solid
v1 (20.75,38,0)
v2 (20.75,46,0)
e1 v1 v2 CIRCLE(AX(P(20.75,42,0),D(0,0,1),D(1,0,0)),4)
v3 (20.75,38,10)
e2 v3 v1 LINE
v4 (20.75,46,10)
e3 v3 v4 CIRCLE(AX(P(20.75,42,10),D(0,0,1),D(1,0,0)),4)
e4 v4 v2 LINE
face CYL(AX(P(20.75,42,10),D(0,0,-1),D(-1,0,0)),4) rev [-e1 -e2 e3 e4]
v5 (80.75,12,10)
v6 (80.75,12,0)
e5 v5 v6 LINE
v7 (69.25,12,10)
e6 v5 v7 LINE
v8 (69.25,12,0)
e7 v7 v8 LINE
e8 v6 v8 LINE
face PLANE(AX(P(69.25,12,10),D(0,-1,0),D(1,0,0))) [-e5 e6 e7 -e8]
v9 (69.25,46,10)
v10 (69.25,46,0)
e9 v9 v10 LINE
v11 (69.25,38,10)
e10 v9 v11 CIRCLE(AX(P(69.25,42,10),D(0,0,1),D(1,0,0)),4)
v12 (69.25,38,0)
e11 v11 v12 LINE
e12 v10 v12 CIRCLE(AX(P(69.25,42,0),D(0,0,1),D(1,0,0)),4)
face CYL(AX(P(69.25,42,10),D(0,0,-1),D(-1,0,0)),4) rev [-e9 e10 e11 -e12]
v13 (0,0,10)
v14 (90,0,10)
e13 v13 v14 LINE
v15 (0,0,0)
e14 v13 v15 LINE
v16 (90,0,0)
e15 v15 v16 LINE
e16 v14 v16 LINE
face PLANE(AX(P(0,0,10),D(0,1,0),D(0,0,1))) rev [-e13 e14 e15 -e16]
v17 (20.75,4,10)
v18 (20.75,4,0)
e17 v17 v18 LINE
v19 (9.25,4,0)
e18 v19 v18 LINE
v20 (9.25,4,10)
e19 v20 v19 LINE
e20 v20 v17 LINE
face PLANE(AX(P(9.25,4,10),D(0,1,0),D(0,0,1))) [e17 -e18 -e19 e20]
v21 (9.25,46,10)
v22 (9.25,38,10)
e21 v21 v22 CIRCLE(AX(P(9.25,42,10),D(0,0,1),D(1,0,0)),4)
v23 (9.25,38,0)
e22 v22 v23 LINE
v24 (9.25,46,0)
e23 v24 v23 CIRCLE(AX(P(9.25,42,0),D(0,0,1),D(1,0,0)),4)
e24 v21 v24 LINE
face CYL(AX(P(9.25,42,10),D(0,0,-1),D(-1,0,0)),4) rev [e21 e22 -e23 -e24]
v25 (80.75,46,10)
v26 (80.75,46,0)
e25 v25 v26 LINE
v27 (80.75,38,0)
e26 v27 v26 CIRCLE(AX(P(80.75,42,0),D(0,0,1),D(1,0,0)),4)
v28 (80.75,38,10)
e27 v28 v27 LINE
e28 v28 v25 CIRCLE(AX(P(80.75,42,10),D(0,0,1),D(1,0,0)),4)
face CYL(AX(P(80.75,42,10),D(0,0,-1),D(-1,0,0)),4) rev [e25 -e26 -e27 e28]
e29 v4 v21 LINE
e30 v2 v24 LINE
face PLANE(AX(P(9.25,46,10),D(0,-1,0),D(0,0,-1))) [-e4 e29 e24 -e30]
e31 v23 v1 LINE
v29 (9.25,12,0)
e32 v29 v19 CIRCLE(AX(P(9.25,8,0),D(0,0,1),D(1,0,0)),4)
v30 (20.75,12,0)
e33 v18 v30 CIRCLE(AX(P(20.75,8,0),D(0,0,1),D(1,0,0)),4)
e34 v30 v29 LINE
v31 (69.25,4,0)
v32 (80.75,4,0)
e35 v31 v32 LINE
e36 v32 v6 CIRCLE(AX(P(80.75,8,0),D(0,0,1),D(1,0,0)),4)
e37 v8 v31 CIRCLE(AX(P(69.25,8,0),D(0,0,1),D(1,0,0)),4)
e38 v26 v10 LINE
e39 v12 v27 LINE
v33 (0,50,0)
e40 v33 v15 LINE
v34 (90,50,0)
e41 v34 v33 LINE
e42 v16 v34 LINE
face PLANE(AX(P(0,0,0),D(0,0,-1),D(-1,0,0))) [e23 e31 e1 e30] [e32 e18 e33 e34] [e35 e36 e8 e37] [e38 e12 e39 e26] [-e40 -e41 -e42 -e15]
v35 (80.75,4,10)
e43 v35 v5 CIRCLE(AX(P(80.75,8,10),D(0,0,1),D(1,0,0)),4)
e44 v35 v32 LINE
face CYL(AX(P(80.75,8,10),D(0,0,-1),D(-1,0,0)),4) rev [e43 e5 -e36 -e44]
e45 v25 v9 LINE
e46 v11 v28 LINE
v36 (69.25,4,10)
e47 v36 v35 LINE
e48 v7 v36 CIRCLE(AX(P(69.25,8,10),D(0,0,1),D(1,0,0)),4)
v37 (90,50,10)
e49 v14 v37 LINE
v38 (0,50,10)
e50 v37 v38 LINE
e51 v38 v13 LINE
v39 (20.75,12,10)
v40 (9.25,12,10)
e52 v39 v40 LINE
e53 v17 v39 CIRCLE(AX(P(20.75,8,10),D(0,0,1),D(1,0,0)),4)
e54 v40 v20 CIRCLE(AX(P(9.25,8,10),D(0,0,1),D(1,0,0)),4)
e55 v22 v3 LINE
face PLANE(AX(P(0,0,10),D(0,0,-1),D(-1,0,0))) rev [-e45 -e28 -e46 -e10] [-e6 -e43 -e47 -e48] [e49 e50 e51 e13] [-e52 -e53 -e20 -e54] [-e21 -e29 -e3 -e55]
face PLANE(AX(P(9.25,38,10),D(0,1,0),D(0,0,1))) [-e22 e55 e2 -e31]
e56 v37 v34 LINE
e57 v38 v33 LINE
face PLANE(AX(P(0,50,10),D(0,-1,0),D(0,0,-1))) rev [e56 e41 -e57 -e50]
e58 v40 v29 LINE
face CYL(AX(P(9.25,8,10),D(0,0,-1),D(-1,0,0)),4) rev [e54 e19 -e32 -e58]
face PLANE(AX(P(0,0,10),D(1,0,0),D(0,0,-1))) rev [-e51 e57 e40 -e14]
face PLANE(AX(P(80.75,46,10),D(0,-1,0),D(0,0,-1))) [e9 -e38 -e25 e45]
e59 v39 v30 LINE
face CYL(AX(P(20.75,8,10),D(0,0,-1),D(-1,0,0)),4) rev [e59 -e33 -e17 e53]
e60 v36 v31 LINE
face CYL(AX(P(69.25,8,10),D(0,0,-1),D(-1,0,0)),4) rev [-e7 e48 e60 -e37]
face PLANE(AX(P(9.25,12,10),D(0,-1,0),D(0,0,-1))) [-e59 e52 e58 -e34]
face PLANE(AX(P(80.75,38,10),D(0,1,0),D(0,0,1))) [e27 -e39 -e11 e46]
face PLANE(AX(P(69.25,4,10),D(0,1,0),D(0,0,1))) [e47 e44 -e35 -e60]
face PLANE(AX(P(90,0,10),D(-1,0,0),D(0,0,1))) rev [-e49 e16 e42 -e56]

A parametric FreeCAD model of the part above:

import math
import FreeCAD as App
import Part
import Sketcher
from FreeCAD import Vector
Q = App.Units.Quantity

doc = App.newDocument("Part")
body = doc.addObject("PartDesign::Body", "Body")

# Sketch on XY plane
sketch1 = body.newObject("Sketcher::SketchObject", "Sketch")
sketch1.AttachmentSupport = (doc.getObject("XY_Plane"), [""])
sketch1.MapMode = "FlatFace"
sketch1.addGeometry([
    Part.LineSegment(Vector(0, 50, 0), Vector(0, 0, 0)),  # 0
    Part.LineSegment(Vector(0, 0, 0), Vector(90, 0, 0)),  # 1
    Part.LineSegment(Vector(90, 0, 0), Vector(90, 50, 0)),  # 2
    Part.LineSegment(Vector(90, 50, 0), Vector(0, 50, 0)),  # 3
    Part.ArcOfCircle(Part.Circle(Vector(9.2, 8, 0), Vector(0, 0, 1), 4), math.radians(90), math.radians(270)),  # 4
    Part.LineSegment(Vector(9.2, 12, 0), Vector(20.8, 12, 0)),  # 5
    Part.ArcOfCircle(Part.Circle(Vector(20.8, 8, 0), Vector(0, 0, 1), 4), math.radians(-90), math.radians(90)),  # 6
    Part.LineSegment(Vector(20.8, 4, 0), Vector(9.2, 4, 0)),  # 7
    Part.ArcOfCircle(Part.Circle(Vector(69.2, 8, 0), Vector(0, 0, 1), 4), math.radians(90), math.radians(270)),  # 8
    Part.LineSegment(Vector(69.2, 12, 0), Vector(80.8, 12, 0)),  # 9
    Part.ArcOfCircle(Part.Circle(Vector(80.8, 8, 0), Vector(0, 0, 1), 4), math.radians(-90), math.radians(90)),  # 10
    Part.LineSegment(Vector(80.8, 4, 0), Vector(69.2, 4, 0)),  # 11
    Part.ArcOfCircle(Part.Circle(Vector(9.2, 42, 0), Vector(0, 0, 1), 4), math.radians(90), math.radians(270)),  # 12
    Part.LineSegment(Vector(9.2, 46, 0), Vector(20.8, 46, 0)),  # 13
    Part.ArcOfCircle(Part.Circle(Vector(20.8, 42, 0), Vector(0, 0, 1), 4), math.radians(-90), math.radians(90)),  # 14
    Part.LineSegment(Vector(20.8, 38, 0), Vector(9.2, 38, 0)),  # 15
    Part.ArcOfCircle(Part.Circle(Vector(80.8, 42, 0), Vector(0, 0, 1), 4), math.radians(-90), math.radians(90)),  # 16
    Part.LineSegment(Vector(80.8, 38, 0), Vector(69.2, 38, 0)),  # 17
    Part.ArcOfCircle(Part.Circle(Vector(69.2, 42, 0), Vector(0, 0, 1), 4), math.radians(90), math.radians(270)),  # 18
    Part.LineSegment(Vector(69.2, 46, 0), Vector(80.8, 46, 0)),  # 19
], False)
sketch1.addConstraint([
    Sketcher.Constraint("Coincident", 0, 2, 1, 1),
    Sketcher.Constraint("Coincident", 1, 2, 2, 1),
    Sketcher.Constraint("Coincident", 2, 2, 3, 1),
    Sketcher.Constraint("Coincident", 3, 2, 0, 1),
    Sketcher.Constraint("Tangent", 4, 1, 5, 1),
    Sketcher.Constraint("Tangent", 5, 2, 6, 2),
    Sketcher.Constraint("Tangent", 6, 1, 7, 1),
    Sketcher.Constraint("Tangent", 7, 2, 4, 2),
    Sketcher.Constraint("Tangent", 8, 1, 9, 1),
    Sketcher.Constraint("Tangent", 9, 2, 10, 2),
    Sketcher.Constraint("Tangent", 10, 1, 11, 1),
    Sketcher.Constraint("Tangent", 11, 2, 8, 2),
    Sketcher.Constraint("Tangent", 12, 1, 13, 1),
    Sketcher.Constraint("Tangent", 13, 2, 14, 2),
    Sketcher.Constraint("Tangent", 14, 1, 15, 1),
    Sketcher.Constraint("Tangent", 15, 2, 12, 2),
    Sketcher.Constraint("Tangent", 16, 1, 17, 1),
    Sketcher.Constraint("Tangent", 17, 2, 18, 2),
    Sketcher.Constraint("Tangent", 18, 1, 19, 1),
    Sketcher.Constraint("Tangent", 19, 2, 16, 2),
    Sketcher.Constraint("Vertical", 0),
    Sketcher.Constraint("Horizontal", 1),
    Sketcher.Constraint("Vertical", 2),
    Sketcher.Constraint("Horizontal", 3),
    Sketcher.Constraint("Horizontal", 5),
    Sketcher.Constraint("Horizontal", 7),
    Sketcher.Constraint("Horizontal", 9),
    Sketcher.Constraint("Horizontal", 11),
    Sketcher.Constraint("Horizontal", 13),
    Sketcher.Constraint("Horizontal", 15),
    Sketcher.Constraint("Horizontal", 17),
    Sketcher.Constraint("Horizontal", 19),
    Sketcher.Constraint("Coincident", 0, 2, -1, 1),
    Sketcher.Constraint("Equal", 6, 8),
    Sketcher.Constraint("Equal", 10, 12),
    Sketcher.Constraint("Equal", 14, 16),
    Sketcher.Constraint("Horizontal", 6, 3, 8, 3),
    Sketcher.Constraint("Horizontal", 14, 3, 16, 3),
    Sketcher.Constraint("Vertical", 4, 3, 12, 3),
    Sketcher.Constraint("Vertical", 6, 3, 14, 3),
    Sketcher.Constraint("Vertical", 10, 3, 16, 3),
    Sketcher.Constraint("Vertical", 8, 3, 18, 3),
    Sketcher.Constraint("Equal", 7, 9),
    Sketcher.Constraint("Radius", 4, Q("4 mm")),
    Sketcher.Constraint("DistanceX", 1, 1, 1, 2, Q("90 mm")),
    Sketcher.Constraint("DistanceY", 0, 2, 0, 1, Q("50 mm")),
    Sketcher.Constraint("DistanceX", 5, 1, 5, 2, Q("11.5 mm")),
    Sketcher.Constraint("DistanceY", -1, 1, 4, 3, Q("8 mm")),
    Sketcher.Constraint("DistanceY", -1, 1, 12, 3, Q("42 mm")),
    Sketcher.Constraint("DistanceX", 4, 3, 8, 3, Q("60 mm")),
    Sketcher.Constraint("DistanceX", -1, 1, 4, 3, Q("9.25 mm")),
])
pad1 = body.newObject("PartDesign::Pad", "Pad")
pad1.Profile = sketch1
pad1.Length = 10

doc.recompute()
